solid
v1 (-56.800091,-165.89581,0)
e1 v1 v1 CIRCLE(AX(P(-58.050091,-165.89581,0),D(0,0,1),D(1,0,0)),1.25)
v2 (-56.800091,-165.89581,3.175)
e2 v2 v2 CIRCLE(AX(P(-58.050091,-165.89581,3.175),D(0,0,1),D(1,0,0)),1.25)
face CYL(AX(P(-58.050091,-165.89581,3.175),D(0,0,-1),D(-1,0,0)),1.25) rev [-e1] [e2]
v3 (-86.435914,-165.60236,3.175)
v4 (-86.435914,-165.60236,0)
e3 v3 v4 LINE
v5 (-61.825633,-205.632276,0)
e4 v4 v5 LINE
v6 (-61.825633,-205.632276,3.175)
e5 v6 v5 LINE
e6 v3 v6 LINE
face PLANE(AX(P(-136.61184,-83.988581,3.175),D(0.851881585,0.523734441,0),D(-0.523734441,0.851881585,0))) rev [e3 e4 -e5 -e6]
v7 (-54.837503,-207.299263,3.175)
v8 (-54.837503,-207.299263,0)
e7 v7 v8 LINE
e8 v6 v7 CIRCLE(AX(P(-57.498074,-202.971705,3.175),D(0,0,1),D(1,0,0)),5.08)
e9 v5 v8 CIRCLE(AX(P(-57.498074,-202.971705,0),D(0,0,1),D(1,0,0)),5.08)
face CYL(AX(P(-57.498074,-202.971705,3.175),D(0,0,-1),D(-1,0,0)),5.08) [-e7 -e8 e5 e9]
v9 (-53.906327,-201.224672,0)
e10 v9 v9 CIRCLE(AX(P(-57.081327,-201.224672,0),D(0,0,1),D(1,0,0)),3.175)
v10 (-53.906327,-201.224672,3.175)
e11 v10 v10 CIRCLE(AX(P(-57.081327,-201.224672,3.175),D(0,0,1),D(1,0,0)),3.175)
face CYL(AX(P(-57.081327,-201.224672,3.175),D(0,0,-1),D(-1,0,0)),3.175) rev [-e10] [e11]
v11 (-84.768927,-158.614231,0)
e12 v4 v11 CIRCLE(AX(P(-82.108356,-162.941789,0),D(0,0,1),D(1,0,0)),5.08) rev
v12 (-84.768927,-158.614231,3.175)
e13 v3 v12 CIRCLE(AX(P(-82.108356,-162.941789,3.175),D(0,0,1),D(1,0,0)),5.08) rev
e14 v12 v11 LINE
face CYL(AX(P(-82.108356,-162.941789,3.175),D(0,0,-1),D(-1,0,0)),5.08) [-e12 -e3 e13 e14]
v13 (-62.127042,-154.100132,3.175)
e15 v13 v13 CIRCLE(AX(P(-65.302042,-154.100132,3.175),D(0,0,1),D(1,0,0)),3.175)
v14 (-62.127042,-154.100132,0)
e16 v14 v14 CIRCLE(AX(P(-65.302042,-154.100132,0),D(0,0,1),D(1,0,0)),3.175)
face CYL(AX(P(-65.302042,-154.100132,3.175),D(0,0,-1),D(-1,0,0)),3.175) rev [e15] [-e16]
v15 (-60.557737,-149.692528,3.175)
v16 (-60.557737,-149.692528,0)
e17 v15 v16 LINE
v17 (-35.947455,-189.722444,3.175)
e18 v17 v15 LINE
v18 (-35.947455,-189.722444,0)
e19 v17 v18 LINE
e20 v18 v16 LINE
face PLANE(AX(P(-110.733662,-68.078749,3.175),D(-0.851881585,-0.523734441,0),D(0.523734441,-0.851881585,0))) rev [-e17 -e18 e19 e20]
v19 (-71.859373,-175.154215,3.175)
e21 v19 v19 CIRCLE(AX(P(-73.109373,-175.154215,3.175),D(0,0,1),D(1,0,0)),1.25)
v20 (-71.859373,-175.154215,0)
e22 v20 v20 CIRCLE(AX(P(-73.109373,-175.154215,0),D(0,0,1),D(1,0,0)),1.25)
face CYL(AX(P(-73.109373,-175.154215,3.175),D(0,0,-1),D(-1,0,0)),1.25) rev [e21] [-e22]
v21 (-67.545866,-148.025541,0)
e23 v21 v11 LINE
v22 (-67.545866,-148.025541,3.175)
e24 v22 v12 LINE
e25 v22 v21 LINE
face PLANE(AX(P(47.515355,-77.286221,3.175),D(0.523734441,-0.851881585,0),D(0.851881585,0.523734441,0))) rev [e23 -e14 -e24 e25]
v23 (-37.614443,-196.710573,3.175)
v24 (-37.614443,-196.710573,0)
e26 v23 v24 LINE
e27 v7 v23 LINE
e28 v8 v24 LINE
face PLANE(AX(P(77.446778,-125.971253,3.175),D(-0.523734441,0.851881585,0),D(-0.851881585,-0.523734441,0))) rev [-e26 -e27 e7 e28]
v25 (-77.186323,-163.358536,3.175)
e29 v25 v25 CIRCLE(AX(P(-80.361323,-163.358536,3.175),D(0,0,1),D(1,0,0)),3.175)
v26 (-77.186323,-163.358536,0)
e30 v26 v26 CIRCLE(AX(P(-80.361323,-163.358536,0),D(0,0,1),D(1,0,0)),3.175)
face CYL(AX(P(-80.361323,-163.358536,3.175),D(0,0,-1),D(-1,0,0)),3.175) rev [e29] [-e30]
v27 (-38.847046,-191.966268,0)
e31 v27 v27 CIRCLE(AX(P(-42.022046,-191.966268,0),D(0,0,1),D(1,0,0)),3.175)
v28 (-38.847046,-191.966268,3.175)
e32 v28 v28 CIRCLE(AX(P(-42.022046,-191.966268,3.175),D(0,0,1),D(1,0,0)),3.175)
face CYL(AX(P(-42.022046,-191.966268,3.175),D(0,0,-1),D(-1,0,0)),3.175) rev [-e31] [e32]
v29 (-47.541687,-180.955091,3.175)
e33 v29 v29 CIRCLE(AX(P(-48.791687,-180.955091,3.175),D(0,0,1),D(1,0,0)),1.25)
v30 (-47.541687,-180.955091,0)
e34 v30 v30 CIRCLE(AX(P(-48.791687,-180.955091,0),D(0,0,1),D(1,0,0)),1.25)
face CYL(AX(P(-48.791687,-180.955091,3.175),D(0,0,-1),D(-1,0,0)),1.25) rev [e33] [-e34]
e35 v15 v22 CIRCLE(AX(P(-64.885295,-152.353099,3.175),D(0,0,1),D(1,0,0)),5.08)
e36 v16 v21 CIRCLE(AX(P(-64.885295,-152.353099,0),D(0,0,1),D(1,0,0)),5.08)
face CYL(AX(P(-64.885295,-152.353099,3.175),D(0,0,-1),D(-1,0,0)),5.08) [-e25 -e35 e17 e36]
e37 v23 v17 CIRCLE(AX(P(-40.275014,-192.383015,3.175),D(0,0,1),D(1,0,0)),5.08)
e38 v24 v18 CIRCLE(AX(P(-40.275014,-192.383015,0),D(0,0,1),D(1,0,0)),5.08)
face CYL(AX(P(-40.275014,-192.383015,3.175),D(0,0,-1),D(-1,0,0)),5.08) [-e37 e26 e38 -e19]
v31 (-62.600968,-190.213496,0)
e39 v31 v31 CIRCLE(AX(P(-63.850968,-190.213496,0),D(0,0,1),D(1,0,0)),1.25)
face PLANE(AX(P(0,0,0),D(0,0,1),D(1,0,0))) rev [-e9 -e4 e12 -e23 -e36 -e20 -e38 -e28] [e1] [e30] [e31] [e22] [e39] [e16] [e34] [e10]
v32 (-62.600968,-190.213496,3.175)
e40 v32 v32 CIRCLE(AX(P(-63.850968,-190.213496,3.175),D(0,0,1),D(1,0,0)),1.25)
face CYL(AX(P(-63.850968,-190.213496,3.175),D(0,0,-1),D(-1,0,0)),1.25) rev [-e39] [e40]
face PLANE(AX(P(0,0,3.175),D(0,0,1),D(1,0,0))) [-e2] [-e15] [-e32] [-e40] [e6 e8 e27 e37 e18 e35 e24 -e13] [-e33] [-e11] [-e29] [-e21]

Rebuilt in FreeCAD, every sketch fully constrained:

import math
import FreeCAD as App
import Part
import Sketcher
from FreeCAD import Vector
Q = App.Units.Quantity

doc = App.newDocument("Part")
params = doc.addObject("Spreadsheet::Sheet", "Params")
for row, (alias, value) in enumerate([
    ("sketch1_radius", "0.2 in"),
    ("sketch1_diameter", "0.25 in"),
    ("sketch1_length", "1.85 in"),
    ("pad1_length", "0.125 in"),
], start=1):
    params.set(f"A{row}", alias)
    params.set(f"B{row}", "=" + value)
    params.setAlias(f"B{row}", alias)

body = doc.addObject("PartDesign::Body", "Body")

# Sketch on XY plane
sketch1 = doc.addObject("Sketcher::SketchObject", "Sketch")
body.addObject(sketch1)
sketch1.AttachmentSupport = (doc.XY_Plane, [""])
sketch1.MapMode = "FlatFace"
sketch1.addGeometry(Part.LineSegment(Vector(-86.435914, -165.60236, 0), Vector(-61.825633, -205.632276, 0)), False)
sketch1.addGeometry(Part.ArcOfCircle(Part.Circle(Vector(-57.498074, -202.971705, 0), Vector(0, 0, 1), 5.08), math.radians(-148.416915), math.radians(-58.416915)), False)
sketch1.addGeometry(Part.LineSegment(Vector(-54.837503, -207.299263, 0), Vector(-37.614443, -196.710573, 0)), False)
sketch1.addGeometry(Part.ArcOfCircle(Part.Circle(Vector(-40.275014, -192.383015, 0), Vector(0, 0, 1), 5.08), math.radians(-58.416915), math.radians(31.583085)), False)
sketch1.addGeometry(Part.LineSegment(Vector(-35.947455, -189.722444, 0), Vector(-60.557737, -149.692528, 0)), False)
sketch1.addGeometry(Part.ArcOfCircle(Part.Circle(Vector(-64.885295, -152.353099, 0), Vector(0, 0, 1), 5.08), math.radians(31.583085), math.radians(121.583085)), False)
sketch1.addGeometry(Part.LineSegment(Vector(-67.545866, -148.025541, 0), Vector(-84.768927, -158.614231, 0)), False)
sketch1.addGeometry(Part.ArcOfCircle(Part.Circle(Vector(-82.108356, -162.941789, 0), Vector(0, 0, 1), 5.08), math.radians(121.583085), math.radians(211.583085)), False)
sketch1.addGeometry(Part.Circle(Vector(-63.850968, -190.213496, 0), Vector(0, 0, 1), 1.25), False)
sketch1.addGeometry(Part.Circle(Vector(-57.081327, -201.224672, 0), Vector(0, 0, 1), 3.175), False)
sketch1.addGeometry(Part.Circle(Vector(-42.022046, -191.966268, 0), Vector(0, 0, 1), 3.175), False)
sketch1.addGeometry(Part.Circle(Vector(-48.791687, -180.955091, 0), Vector(0, 0, 1), 1.25), False)
sketch1.addGeometry(Part.Circle(Vector(-73.109373, -175.154215, 0), Vector(0, 0, 1), 1.25), False)
sketch1.addGeometry(Part.Circle(Vector(-80.361323, -163.358536, 0), Vector(0, 0, 1), 3.175), False)
sketch1.addGeometry(Part.Circle(Vector(-65.302042, -154.100132, 0), Vector(0, 0, 1), 3.175), False)
sketch1.addGeometry(Part.Circle(Vector(-58.050091, -165.89581, 0), Vector(0, 0, 1), 1.25), False)
sketch1.addConstraint(Sketcher.Constraint("Tangent", 0, 2, 1, 1))
sketch1.addConstraint(Sketcher.Constraint("Tangent", 1, 2, 2, 1))
sketch1.addConstraint(Sketcher.Constraint("Tangent", 2, 2, 3, 1))
sketch1.addConstraint(Sketcher.Constraint("Tangent", 3, 2, 4, 1))
sketch1.addConstraint(Sketcher.Constraint("Tangent", 4, 2, 5, 1))
sketch1.addConstraint(Sketcher.Constraint("Tangent", 5, 2, 6, 1))
sketch1.addConstraint(Sketcher.Constraint("Tangent", 6, 2, 7, 1))
sketch1.addConstraint(Sketcher.Constraint("Tangent", 7, 2, 0, 1))
sketch1.addConstraint(Sketcher.Constraint("Equal", 1, 3))
sketch1.addConstraint(Sketcher.Constraint("Equal", 3, 5))
sketch1.addConstraint(Sketcher.Constraint("Equal", 5, 7))
sketch1.addConstraint(Sketcher.Constraint("Equal", 9, 10))
sketch1.addConstraint(Sketcher.Constraint("Equal", 8, 11))
sketch1.addConstraint(Sketcher.Constraint("Equal", 11, 12))
sketch1.addConstraint(Sketcher.Constraint("Equal", 10, 13))
sketch1.addConstraint(Sketcher.Constraint("Equal", 13, 14))
sketch1.addConstraint(Sketcher.Constraint("Equal", 12, 15))
sketch1.addConstraint(Sketcher.Constraint("Perpendicular", 0, 2))
sketch1.addConstraint(Sketcher.Constraint("Perpendicular", 2, 4))
sketch1.addConstraint(Sketcher.Constraint("Perpendicular", 4, 6))
sketch1.addConstraint(Sketcher.Constraint("Radius", 1, Q("0.2 in")))
sketch1.addConstraint(Sketcher.Constraint("Diameter", 9, Q("0.25 in")))
sketch1.addConstraint(Sketcher.Constraint("Distance", 0, Q("1.85 in")))
sketch1.addConstraint(Sketcher.Constraint("Diameter", 8, 2.5))
sketch1.addConstraint(Sketcher.Constraint("DistanceY", 9, 3, 7, 3, Q("1.5072001 in")))
sketch1.addConstraint(Sketcher.Constraint("DistanceY", 5, 3, -1, 1, 152.353099))
sketch1.addConstraint(Sketcher.Constraint("DistanceY", 9, 3, 2, 2, 4.514099))
sketch1.addConstraint(Sketcher.Constraint("DistanceY", 6, 2, 14, 3, 4.514099))
sketch1.addConstraint(Sketcher.Constraint("Distance", 2, 20.21767))
sketch1.addConstraint(Sketcher.Constraint("DistanceX", 8, 3, -1, 1, 63.850968))
sketch1.addConstraint(Sketcher.Constraint("DistanceY", 10, 3, -1, 1, 191.966268))
sketch1.addConstraint(Sketcher.Constraint("DistanceY", 11, 3, -1, 1, 180.955091))
sketch1.addConstraint(Sketcher.Constraint("DistanceX", 15, 3, -1, 1, 58.050091))
sketch1.addConstraint(Sketcher.Constraint("DistanceY", 15, 3, -1, 1, 165.89581))
sketch1.addConstraint(Sketcher.Constraint("DistanceY", 1, 3, 8, 3, 12.758209))
sketch1.addConstraint(Sketcher.Constraint("DistanceX", 8, 3, 9, 3, 6.769641))
sketch1.addConstraint(Sketcher.Constraint("DistanceX", 7, 3, 9, 3, 25.027028))
sketch1.addConstraint(Sketcher.Constraint("DistanceX", 9, 3, 10, 3, 15.059281))
sketch1.addConstraint(Sketcher.Constraint("DistanceX", 11, 3, 10, 3, 6.769641))
sketch1.addConstraint(Sketcher.Constraint("DistanceY", 8, 3, 12, 3, 15.059281))
sketch1.addConstraint(Sketcher.Constraint("DistanceX", 13, 3, 12, 3, 7.251951))
sketch1.addConstraint(Sketcher.Constraint("DistanceY", 12, 3, 13, 3, 11.795679))
sketch1.addConstraint(Sketcher.Constraint("DistanceX", 13, 3, 5, 3, 15.476028))
sketch1.addConstraint(Sketcher.Constraint("DistanceX", 13, 3, 14, 3, 15.059281))
sketch1.setExpression("Constraints[20]", "Params.sketch1_radius")
sketch1.setExpression("Constraints[21]", "Params.sketch1_diameter")
sketch1.setExpression("Constraints[22]", "Params.sketch1_length")
pad1 = doc.addObject("PartDesign::Pad", "Pad")
body.addObject(pad1)
pad1.Profile = sketch1
pad1.setExpression("Length", "Params.pad1_length")

doc.recompute()
